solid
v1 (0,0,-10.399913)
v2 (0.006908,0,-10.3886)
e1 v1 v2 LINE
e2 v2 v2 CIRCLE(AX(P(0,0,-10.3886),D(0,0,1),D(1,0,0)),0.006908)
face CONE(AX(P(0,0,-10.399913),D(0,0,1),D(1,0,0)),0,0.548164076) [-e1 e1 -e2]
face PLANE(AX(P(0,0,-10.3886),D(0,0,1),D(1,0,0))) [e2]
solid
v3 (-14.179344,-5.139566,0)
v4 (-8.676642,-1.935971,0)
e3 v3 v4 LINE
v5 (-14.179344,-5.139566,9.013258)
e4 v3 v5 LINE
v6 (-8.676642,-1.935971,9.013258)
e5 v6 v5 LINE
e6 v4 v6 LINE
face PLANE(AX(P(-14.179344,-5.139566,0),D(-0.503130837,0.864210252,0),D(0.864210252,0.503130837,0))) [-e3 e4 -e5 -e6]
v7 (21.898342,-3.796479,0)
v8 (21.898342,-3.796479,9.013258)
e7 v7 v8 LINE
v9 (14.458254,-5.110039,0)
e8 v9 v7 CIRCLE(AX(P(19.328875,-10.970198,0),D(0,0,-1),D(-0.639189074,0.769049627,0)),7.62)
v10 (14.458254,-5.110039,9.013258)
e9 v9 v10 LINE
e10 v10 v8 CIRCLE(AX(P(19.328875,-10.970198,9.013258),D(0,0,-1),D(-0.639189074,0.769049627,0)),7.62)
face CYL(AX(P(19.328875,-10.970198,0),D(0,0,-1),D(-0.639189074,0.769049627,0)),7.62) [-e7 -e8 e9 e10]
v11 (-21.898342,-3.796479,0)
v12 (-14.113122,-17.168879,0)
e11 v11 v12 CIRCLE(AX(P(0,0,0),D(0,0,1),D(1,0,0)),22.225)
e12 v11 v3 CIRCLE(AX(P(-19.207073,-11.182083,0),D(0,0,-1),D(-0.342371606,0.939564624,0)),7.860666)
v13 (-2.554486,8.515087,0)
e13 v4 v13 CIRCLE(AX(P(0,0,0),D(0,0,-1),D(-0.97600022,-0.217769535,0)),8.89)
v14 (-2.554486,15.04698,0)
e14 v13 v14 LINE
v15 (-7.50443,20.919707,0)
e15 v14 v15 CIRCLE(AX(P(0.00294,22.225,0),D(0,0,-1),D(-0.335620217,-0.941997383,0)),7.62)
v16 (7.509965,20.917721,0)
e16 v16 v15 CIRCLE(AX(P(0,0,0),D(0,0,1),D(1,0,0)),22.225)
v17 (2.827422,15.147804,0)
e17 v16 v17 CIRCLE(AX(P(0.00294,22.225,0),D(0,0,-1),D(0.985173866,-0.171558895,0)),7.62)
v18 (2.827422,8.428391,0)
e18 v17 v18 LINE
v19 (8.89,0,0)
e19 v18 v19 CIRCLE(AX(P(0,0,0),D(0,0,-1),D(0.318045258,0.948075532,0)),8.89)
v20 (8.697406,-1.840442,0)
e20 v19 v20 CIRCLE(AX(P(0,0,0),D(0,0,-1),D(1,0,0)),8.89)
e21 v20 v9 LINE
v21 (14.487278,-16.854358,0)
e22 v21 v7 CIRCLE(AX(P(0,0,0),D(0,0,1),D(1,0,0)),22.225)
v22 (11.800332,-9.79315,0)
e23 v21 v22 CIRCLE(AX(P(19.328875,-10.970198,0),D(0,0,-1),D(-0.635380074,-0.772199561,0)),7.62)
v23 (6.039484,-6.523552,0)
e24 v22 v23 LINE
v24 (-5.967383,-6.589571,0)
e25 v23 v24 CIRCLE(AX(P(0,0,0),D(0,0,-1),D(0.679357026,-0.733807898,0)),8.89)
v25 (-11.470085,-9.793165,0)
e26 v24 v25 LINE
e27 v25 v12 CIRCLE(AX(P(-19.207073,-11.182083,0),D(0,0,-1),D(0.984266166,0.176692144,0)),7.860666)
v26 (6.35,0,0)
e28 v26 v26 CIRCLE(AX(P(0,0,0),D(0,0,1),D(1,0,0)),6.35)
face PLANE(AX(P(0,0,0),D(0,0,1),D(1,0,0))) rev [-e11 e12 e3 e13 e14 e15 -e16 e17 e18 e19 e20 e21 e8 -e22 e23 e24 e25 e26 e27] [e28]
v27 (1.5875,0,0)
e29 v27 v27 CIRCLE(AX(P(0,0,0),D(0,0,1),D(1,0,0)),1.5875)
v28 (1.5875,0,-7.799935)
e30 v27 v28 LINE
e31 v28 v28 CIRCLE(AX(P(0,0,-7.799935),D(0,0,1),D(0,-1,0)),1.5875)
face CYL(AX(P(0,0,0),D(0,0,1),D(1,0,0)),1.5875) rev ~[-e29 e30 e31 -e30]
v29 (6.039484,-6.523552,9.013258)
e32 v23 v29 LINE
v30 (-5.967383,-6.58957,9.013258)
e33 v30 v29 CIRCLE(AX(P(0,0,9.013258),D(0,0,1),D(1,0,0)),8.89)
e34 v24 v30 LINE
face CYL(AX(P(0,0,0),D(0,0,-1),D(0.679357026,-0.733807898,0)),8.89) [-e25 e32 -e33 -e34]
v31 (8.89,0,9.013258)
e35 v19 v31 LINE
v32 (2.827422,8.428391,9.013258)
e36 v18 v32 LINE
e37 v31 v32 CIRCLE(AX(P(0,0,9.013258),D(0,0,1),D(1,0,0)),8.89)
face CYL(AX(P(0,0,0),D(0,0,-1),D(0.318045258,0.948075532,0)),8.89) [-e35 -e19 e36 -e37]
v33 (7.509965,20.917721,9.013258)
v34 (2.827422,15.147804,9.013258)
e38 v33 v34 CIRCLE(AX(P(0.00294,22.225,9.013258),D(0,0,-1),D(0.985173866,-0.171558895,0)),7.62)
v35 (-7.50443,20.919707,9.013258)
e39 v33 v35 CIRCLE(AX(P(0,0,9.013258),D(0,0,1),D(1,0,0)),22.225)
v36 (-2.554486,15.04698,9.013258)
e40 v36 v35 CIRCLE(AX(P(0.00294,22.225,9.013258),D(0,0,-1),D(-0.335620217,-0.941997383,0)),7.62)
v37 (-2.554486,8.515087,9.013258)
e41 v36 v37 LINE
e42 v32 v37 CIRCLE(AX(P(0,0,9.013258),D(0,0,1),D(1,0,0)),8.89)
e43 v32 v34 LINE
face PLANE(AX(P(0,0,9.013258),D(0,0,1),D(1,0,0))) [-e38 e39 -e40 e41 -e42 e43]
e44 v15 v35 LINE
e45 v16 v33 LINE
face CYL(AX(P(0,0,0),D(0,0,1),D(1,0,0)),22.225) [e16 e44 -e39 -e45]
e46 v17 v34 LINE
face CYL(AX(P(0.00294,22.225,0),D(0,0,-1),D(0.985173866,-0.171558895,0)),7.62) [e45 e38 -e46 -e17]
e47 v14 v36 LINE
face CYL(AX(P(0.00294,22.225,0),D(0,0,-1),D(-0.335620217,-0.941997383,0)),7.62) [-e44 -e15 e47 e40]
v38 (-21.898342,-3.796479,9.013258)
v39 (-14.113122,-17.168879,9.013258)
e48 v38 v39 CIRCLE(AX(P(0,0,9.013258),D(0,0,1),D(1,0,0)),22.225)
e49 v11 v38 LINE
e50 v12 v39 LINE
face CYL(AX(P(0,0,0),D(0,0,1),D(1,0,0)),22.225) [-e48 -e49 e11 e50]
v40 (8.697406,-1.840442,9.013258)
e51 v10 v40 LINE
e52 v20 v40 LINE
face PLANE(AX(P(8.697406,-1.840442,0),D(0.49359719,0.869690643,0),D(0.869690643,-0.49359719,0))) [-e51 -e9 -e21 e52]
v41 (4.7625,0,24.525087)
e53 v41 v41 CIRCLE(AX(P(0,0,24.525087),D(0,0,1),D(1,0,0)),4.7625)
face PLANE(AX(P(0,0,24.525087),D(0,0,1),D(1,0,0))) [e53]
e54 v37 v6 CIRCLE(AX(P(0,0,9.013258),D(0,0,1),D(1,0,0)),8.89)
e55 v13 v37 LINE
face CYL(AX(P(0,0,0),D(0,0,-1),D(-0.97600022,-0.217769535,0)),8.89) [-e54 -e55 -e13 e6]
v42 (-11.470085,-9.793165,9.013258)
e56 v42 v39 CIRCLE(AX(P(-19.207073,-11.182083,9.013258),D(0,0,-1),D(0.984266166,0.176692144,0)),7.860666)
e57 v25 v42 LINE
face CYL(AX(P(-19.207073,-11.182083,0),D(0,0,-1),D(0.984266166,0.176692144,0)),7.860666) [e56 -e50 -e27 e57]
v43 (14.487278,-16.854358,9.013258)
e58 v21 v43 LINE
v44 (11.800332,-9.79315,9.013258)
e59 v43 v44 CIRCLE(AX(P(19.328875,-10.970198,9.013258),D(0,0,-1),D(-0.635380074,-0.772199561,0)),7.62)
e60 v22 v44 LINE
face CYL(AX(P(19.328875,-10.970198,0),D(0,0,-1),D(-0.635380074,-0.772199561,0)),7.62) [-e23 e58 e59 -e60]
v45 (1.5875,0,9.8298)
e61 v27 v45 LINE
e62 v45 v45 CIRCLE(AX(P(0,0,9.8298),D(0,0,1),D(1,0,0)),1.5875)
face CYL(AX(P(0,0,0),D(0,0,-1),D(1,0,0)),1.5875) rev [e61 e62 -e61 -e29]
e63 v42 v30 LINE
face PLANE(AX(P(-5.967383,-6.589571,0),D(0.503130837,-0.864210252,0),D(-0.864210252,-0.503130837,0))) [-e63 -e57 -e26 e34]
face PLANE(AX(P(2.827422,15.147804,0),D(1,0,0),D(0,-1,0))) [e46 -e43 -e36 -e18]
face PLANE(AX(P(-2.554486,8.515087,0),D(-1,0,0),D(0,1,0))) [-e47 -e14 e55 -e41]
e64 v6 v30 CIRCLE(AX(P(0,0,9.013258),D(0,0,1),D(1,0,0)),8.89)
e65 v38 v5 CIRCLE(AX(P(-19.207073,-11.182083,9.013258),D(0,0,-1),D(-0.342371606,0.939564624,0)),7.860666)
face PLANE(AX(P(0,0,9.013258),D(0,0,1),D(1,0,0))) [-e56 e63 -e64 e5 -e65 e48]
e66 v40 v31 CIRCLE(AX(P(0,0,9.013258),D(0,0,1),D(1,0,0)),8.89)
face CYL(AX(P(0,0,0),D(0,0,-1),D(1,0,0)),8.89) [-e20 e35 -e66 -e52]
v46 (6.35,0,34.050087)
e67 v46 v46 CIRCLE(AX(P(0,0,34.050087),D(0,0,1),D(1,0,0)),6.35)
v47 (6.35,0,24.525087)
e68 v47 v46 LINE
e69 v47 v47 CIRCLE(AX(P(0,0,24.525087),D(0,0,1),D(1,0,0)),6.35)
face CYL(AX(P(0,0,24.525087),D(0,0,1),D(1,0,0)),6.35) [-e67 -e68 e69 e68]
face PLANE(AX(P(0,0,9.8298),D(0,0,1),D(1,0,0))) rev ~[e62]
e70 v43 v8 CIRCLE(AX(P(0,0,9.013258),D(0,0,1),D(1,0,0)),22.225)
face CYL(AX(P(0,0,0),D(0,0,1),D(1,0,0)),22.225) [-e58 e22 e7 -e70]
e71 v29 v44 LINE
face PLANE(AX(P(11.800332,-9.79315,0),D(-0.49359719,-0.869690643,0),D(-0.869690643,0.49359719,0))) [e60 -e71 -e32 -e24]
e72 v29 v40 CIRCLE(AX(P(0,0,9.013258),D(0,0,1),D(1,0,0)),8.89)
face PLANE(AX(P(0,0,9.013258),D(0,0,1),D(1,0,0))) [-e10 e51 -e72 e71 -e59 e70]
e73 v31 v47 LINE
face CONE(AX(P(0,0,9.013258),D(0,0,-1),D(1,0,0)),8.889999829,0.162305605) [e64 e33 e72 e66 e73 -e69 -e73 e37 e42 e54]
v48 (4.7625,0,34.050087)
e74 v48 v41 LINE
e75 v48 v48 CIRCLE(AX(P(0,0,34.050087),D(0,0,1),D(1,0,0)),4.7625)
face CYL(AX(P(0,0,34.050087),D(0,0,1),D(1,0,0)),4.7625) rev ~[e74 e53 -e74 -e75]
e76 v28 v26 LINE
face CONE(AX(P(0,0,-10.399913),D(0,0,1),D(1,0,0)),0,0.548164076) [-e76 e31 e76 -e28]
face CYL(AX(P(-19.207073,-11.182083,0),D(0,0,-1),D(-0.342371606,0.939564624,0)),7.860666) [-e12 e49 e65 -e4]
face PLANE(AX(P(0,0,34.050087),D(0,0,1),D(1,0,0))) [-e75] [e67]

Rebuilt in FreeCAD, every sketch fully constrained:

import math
import FreeCAD as App
import Part
import Sketcher

V = App.Vector
Q = App.Units.Quantity

doc = App.newDocument("Part")
body = doc.addObject("PartDesign::Body", "Body")
body.AllowCompound = True

sketch1 = body.newObject("Sketcher::SketchObject", "Sketch")
sketch1.AttachmentSupport = (doc.getObject("XZ_Plane"), [""])
sketch1.MapMode = "FlatFace"
sketch1.addGeometry([
    Part.LineSegment(V(6.35, 24.525087, 0), V(6.35, 34.050087, 0)),
    Part.LineSegment(V(6.35, 34.050087, 0), V(0, 34.050087, 0)),
    Part.LineSegment(V(0, 34.050087, 0), V(0, -10.399913, 0)),
    Part.LineSegment(V(0, -10.399913, 0), V(6.35, 0, 0)),
    Part.LineSegment(V(6.35, 0, 0), V(22.225, 0, 0)),
    Part.LineSegment(V(22.225, 0, 0), V(22.225, 9.013258, 0)),
    Part.LineSegment(V(22.225, 9.013258, 0), V(8.89, 9.013258, 0)),
    Part.LineSegment(V(8.89, 9.013258, 0), V(6.35, 24.525087, 0)),
], False)
sketch1.addConstraint([
    Sketcher.Constraint("Coincident", 0, 2, 1, 1),
    Sketcher.Constraint("Coincident", 1, 2, 2, 1),
    Sketcher.Constraint("Coincident", 2, 2, 3, 1),
    Sketcher.Constraint("Coincident", 3, 2, 4, 1),
    Sketcher.Constraint("Coincident", 4, 2, 5, 1),
    Sketcher.Constraint("Coincident", 5, 2, 6, 1),
    Sketcher.Constraint("Coincident", 6, 2, 7, 1),
    Sketcher.Constraint("Coincident", 7, 2, 0, 1),
    Sketcher.Constraint("Vertical", 0),
    Sketcher.Constraint("Horizontal", 1),
    Sketcher.Constraint("Vertical", 2),
    Sketcher.Constraint("Horizontal", 4),
    Sketcher.Constraint("Vertical", 5),
    Sketcher.Constraint("Horizontal", 6),
    Sketcher.Constraint("PointOnObject", 1, 2, -2),
    Sketcher.Constraint("PointOnObject", 3, 2, -1),
    Sketcher.Constraint("Vertical", 0, 2, 3, 2),
    Sketcher.Constraint("DistanceX", 1, 2, 1, 1, Q("0.25 in")),
    Sketcher.Constraint("DistanceY", 2, 2, 2, 1, Q("1.75 in")),
    Sketcher.Constraint("DistanceX", 3, 2, 6, 2, Q("0.1 in")),
    Sketcher.Constraint("DistanceX", 4, 1, 4, 2, Q("0.625 in")),
    Sketcher.Constraint("DistanceY", 0, 1, 0, 2, Q("0.375 in")),
    Sketcher.Constraint("Distance", 7, Q("15.71841 mm")),
    Sketcher.Constraint("DistanceY", 5, 1, 5, 2, Q("9.013258 mm")),
])
revolution = body.newObject("PartDesign::Revolution", "Revolution")
revolution.Profile = sketch1
revolution.ReferenceAxis = (sketch1, ["V_Axis"])
revolution.Angle = 360

sketch2 = body.newObject("Sketcher::SketchObject", "Sketch001")
sketch2.AttachmentSupport = (doc.getObject("XY_Plane"), [""])
sketch2.MapMode = "FlatFace"
sketch2.addGeometry([
    Part.ArcOfCircle(Part.Circle(V(0, 0, 0), V(0, 0, 1), 22.225), math.radians(-129.420808), math.radians(-49.319069)),
    Part.ArcOfCircle(Part.Circle(V(19.328875, -10.970198, 0), V(0, 0, 1), 7.62), math.radians(171.114043), math.radians(230.55182)),
    Part.LineSegment(V(11.800332, -9.79315, 0), V(6.039484, -6.523552, 0)),
    Part.ArcOfCircle(Part.Circle(V(0, 0, 0), V(0, 0, 1), 8.89), math.radians(-132.163358), math.radians(-47.206581)),
    Part.LineSegment(V(-5.967383, -6.589571, 0), V(-11.470085, -9.793165, 0)),
    Part.ArcOfCircle(Part.Circle(V(-19.207073, -11.182083, 0), V(0, 0, 1), 7.860666), math.radians(-49.606728), math.radians(10.177145)),
    Part.ArcOfCircle(Part.Circle(V(0, 0, 0), V(0, 0, 1), 22.225), math.radians(-9.835511), math.radians(0)),
    Part.ArcOfCircle(Part.Circle(V(0, 0, 0), V(0, 0, 1), 22.225), math.radians(0), math.radians(70.250641)),
    Part.ArcOfCircle(Part.Circle(V(0.00294, 22.225, 0), V(0, 0, 1), 7.62), math.radians(-68.243243), math.radians(-9.878469)),
    Part.LineSegment(V(2.827422, 15.147804, 0), V(2.827422, 8.428391, 0)),
    Part.ArcOfCircle(Part.Circle(V(0, 0, 0), V(0, 0, 1), 8.89), math.radians(0), math.radians(71.455249)),
    Part.ArcOfCircle(Part.Circle(V(0, 0, 0), V(0, 0, 1), 8.89), math.radians(-11.947999), math.radians(0)),
    Part.LineSegment(V(8.697406, -1.840442, 0), V(14.458254, -5.110039, 0)),
    Part.ArcOfCircle(Part.Circle(V(19.328875, -10.970198, 0), V(0, 0, 1), 7.62), math.radians(70.2936), math.radians(129.731377)),
    Part.ArcOfCircle(Part.Circle(V(0.00294, 22.225, 0), V(0, 0, 1), 7.62), math.radians(-170.13669), math.radians(-109.610257)),
    Part.ArcOfCircle(Part.Circle(V(0, 0, 0), V(0, 0, 1), 22.225), math.radians(109.7342), math.radians(189.835511)),
    Part.ArcOfCircle(Part.Circle(V(-19.207073, -11.182083, 0), V(0, 0, 1), 7.860666), math.radians(50.237558), math.radians(110.021431)),
    Part.LineSegment(V(-14.179344, -5.139566, 0), V(-8.676642, -1.935971, 0)),
    Part.ArcOfCircle(Part.Circle(V(0, 0, 0), V(0, 0, 1), 8.89), math.radians(106.698998), math.radians(192.578061)),
    Part.LineSegment(V(-2.554486, 8.515087, 0), V(-2.554486, 15.04698, 0)),
], False)
sketch2.addConstraint([
    Sketcher.Constraint("Coincident", 0, 2, 1, 2),
    Sketcher.Constraint("Coincident", 1, 1, 2, 1),
    Sketcher.Constraint("Coincident", 2, 2, 3, 2),
    Sketcher.Constraint("Coincident", 3, 1, 4, 1),
    Sketcher.Constraint("Coincident", 4, 2, 5, 2),
    Sketcher.Constraint("Coincident", 5, 1, 0, 1),
    Sketcher.Constraint("Coincident", 6, 2, 7, 1),
    Sketcher.Constraint("Coincident", 7, 2, 8, 2),
    Sketcher.Constraint("Coincident", 8, 1, 9, 1),
    Sketcher.Constraint("Coincident", 9, 2, 10, 2),
    Sketcher.Constraint("Coincident", 10, 1, 11, 2),
    Sketcher.Constraint("Coincident", 11, 1, 12, 1),
    Sketcher.Constraint("Coincident", 12, 2, 13, 2),
    Sketcher.Constraint("Coincident", 13, 1, 6, 1),
    Sketcher.Constraint("Coincident", 14, 1, 15, 1),
    Sketcher.Constraint("Coincident", 15, 2, 16, 2),
    Sketcher.Constraint("Coincident", 16, 1, 17, 1),
    Sketcher.Constraint("Coincident", 17, 2, 18, 2),
    Sketcher.Constraint("Coincident", 18, 1, 19, 1),
    Sketcher.Constraint("Coincident", 19, 2, 14, 2),
    Sketcher.Constraint("Vertical", 9),
    Sketcher.Constraint("Vertical", 19),
    Sketcher.Constraint("Coincident", 0, 3, -1, 1),
    Sketcher.Constraint("Coincident", 3, 3, -1, 1),
    Sketcher.Constraint("Coincident", 6, 3, -1, 1),
    Sketcher.Constraint("Coincident", 7, 3, -1, 1),
    Sketcher.Constraint("Coincident", 10, 3, -1, 1),
    Sketcher.Constraint("Coincident", 11, 3, -1, 1),
    Sketcher.Constraint("Coincident", 15, 3, -1, 1),
    Sketcher.Constraint("Coincident", 18, 3, -1, 1),
    Sketcher.Constraint("Coincident", 13, 3, 1, 3),
    Sketcher.Constraint("Coincident", 14, 3, 8, 3),
    Sketcher.Constraint("Coincident", 16, 3, 5, 3),
    Sketcher.Constraint("PointOnObject", 6, 2, -1),
    Sketcher.Constraint("PointOnObject", 10, 1, -1),
    Sketcher.Constraint("Radius", 1, Q("0.3 in")),
    Sketcher.Constraint("Radius", 8, Q("0.3 in")),
    Sketcher.Constraint("Radius", 13, Q("0.3 in")),
    Sketcher.Constraint("Radius", 14, Q("0.3 in")),
    Sketcher.Constraint("Radius", 3, Q("0.35 in")),
    Sketcher.Constraint("Radius", 10, Q("0.35 in")),
    Sketcher.Constraint("Radius", 18, Q("0.35 in")),
    Sketcher.Constraint("Radius", 0, Q("0.875 in")),
    Sketcher.Constraint("Radius", 6, Q("0.875 in")),
    Sketcher.Constraint("Radius", 15, Q("0.875 in")),
    Sketcher.Constraint("DistanceY", -1, 1, 8, 3, Q("0.875 in")),
    Sketcher.Constraint("DistanceX", 17, 2, -1, 1, Q("0.3416001 in")),
    Sketcher.Constraint("Radius", 5, Q("7.860666 mm")),
    Sketcher.Constraint("Radius", 16, Q("7.860666 mm")),
    Sketcher.Constraint("DistanceX", 8, 3, 8, 1, Q("0.1112001 in")),
    Sketcher.Constraint("DistanceY", 5, 1, 15, 2, Q("13.372401 mm")),
    Sketcher.Constraint("DistanceY", 4, 2, 16, 1, Q("4.653599 mm")),
    Sketcher.Constraint("DistanceY", 3, 1, 17, 2, Q("4.653599 mm")),
    Sketcher.Constraint("Distance", 2, Q("6.624019 mm")),
    Sketcher.Constraint("Distance", 4, Q("6.367319 mm")),
    Sketcher.Constraint("Distance", 12, Q("6.624019 mm")),
    Sketcher.Constraint("Distance", 17, Q("6.367319 mm")),
    Sketcher.Constraint("DistanceY", 9, 2, 9, 1, Q("6.719413 mm")),
    Sketcher.Constraint("DistanceY", 19, 1, 19, 2, Q("6.531893 mm")),
    Sketcher.Constraint("DistanceX", -1, 1, 0, 2, Q("14.487278 mm")),
    Sketcher.Constraint("DistanceX", -1, 1, 1, 1, Q("11.800332 mm")),
    Sketcher.Constraint("DistanceY", 1, 1, -1, 1, Q("9.79315 mm")),
    Sketcher.Constraint("DistanceY", 12, 2, -1, 1, Q("5.110039 mm")),
])
pocket1 = body.newObject("PartDesign::Pocket", "Pocket")
pocket1.Profile = sketch2
pocket1.Length = Q("0.555 in")
pocket1.Reversed = True

sketch3 = body.newObject("Sketcher::SketchObject", "Sketch002")
sketch3.AttachmentSupport = (doc.getObject("XY_Plane"), [""])
sketch3.MapMode = "FlatFace"
sketch3.AttachmentOffset = App.Placement(V(0, 0, 34.050087), App.Rotation())
sketch3.addGeometry(Part.Circle(V(0, 0, 0), V(0, 0, 1), 4.7625), False)
sketch3.addConstraint([
    Sketcher.Constraint("Coincident", 0, 3, -1, 1),
    Sketcher.Constraint("Diameter", 0, Q("0.375 in")),
])
pocket2 = body.newObject("PartDesign::Pocket", "Pocket001")
pocket2.Profile = sketch3
pocket2.Length = Q("0.375 in")

sketch4 = body.newObject("Sketcher::SketchObject", "Sketch003")
sketch4.AttachmentSupport = (doc.getObject("XY_Plane"), [""])
sketch4.MapMode = "FlatFace"
sketch4.addGeometry(Part.Circle(V(0, 0, 0), V(0, 0, 1), 1.5875), False)
sketch4.addConstraint([
    Sketcher.Constraint("Coincident", 0, 3, -1, 1),
    Sketcher.Constraint("Diameter", 0, Q("0.125 in")),
])
pocket3 = body.newObject("PartDesign::Pocket", "Pocket002")
pocket3.Profile = sketch4
pocket3.Length = Q("0.409 in")

sketch5 = body.newObject("Sketcher::SketchObject", "Sketch004")
sketch5.AttachmentSupport = (doc.getObject("XY_Plane"), [""])
sketch5.MapMode = "FlatFace"
sketch5.addGeometry(Part.Circle(V(0, 0, 0), V(0, 0, 1), 1.5875), False)
sketch5.addConstraint([
    Sketcher.Constraint("Coincident", 0, 3, -1, 1),
    Sketcher.Constraint("Diameter", 0, Q("0.125 in")),
])
pocket4 = body.newObject("PartDesign::Pocket", "Pocket003")
pocket4.Profile = sketch5
pocket4.Length = Q("0.387 in")
pocket4.Reversed = True

doc.recompute()
